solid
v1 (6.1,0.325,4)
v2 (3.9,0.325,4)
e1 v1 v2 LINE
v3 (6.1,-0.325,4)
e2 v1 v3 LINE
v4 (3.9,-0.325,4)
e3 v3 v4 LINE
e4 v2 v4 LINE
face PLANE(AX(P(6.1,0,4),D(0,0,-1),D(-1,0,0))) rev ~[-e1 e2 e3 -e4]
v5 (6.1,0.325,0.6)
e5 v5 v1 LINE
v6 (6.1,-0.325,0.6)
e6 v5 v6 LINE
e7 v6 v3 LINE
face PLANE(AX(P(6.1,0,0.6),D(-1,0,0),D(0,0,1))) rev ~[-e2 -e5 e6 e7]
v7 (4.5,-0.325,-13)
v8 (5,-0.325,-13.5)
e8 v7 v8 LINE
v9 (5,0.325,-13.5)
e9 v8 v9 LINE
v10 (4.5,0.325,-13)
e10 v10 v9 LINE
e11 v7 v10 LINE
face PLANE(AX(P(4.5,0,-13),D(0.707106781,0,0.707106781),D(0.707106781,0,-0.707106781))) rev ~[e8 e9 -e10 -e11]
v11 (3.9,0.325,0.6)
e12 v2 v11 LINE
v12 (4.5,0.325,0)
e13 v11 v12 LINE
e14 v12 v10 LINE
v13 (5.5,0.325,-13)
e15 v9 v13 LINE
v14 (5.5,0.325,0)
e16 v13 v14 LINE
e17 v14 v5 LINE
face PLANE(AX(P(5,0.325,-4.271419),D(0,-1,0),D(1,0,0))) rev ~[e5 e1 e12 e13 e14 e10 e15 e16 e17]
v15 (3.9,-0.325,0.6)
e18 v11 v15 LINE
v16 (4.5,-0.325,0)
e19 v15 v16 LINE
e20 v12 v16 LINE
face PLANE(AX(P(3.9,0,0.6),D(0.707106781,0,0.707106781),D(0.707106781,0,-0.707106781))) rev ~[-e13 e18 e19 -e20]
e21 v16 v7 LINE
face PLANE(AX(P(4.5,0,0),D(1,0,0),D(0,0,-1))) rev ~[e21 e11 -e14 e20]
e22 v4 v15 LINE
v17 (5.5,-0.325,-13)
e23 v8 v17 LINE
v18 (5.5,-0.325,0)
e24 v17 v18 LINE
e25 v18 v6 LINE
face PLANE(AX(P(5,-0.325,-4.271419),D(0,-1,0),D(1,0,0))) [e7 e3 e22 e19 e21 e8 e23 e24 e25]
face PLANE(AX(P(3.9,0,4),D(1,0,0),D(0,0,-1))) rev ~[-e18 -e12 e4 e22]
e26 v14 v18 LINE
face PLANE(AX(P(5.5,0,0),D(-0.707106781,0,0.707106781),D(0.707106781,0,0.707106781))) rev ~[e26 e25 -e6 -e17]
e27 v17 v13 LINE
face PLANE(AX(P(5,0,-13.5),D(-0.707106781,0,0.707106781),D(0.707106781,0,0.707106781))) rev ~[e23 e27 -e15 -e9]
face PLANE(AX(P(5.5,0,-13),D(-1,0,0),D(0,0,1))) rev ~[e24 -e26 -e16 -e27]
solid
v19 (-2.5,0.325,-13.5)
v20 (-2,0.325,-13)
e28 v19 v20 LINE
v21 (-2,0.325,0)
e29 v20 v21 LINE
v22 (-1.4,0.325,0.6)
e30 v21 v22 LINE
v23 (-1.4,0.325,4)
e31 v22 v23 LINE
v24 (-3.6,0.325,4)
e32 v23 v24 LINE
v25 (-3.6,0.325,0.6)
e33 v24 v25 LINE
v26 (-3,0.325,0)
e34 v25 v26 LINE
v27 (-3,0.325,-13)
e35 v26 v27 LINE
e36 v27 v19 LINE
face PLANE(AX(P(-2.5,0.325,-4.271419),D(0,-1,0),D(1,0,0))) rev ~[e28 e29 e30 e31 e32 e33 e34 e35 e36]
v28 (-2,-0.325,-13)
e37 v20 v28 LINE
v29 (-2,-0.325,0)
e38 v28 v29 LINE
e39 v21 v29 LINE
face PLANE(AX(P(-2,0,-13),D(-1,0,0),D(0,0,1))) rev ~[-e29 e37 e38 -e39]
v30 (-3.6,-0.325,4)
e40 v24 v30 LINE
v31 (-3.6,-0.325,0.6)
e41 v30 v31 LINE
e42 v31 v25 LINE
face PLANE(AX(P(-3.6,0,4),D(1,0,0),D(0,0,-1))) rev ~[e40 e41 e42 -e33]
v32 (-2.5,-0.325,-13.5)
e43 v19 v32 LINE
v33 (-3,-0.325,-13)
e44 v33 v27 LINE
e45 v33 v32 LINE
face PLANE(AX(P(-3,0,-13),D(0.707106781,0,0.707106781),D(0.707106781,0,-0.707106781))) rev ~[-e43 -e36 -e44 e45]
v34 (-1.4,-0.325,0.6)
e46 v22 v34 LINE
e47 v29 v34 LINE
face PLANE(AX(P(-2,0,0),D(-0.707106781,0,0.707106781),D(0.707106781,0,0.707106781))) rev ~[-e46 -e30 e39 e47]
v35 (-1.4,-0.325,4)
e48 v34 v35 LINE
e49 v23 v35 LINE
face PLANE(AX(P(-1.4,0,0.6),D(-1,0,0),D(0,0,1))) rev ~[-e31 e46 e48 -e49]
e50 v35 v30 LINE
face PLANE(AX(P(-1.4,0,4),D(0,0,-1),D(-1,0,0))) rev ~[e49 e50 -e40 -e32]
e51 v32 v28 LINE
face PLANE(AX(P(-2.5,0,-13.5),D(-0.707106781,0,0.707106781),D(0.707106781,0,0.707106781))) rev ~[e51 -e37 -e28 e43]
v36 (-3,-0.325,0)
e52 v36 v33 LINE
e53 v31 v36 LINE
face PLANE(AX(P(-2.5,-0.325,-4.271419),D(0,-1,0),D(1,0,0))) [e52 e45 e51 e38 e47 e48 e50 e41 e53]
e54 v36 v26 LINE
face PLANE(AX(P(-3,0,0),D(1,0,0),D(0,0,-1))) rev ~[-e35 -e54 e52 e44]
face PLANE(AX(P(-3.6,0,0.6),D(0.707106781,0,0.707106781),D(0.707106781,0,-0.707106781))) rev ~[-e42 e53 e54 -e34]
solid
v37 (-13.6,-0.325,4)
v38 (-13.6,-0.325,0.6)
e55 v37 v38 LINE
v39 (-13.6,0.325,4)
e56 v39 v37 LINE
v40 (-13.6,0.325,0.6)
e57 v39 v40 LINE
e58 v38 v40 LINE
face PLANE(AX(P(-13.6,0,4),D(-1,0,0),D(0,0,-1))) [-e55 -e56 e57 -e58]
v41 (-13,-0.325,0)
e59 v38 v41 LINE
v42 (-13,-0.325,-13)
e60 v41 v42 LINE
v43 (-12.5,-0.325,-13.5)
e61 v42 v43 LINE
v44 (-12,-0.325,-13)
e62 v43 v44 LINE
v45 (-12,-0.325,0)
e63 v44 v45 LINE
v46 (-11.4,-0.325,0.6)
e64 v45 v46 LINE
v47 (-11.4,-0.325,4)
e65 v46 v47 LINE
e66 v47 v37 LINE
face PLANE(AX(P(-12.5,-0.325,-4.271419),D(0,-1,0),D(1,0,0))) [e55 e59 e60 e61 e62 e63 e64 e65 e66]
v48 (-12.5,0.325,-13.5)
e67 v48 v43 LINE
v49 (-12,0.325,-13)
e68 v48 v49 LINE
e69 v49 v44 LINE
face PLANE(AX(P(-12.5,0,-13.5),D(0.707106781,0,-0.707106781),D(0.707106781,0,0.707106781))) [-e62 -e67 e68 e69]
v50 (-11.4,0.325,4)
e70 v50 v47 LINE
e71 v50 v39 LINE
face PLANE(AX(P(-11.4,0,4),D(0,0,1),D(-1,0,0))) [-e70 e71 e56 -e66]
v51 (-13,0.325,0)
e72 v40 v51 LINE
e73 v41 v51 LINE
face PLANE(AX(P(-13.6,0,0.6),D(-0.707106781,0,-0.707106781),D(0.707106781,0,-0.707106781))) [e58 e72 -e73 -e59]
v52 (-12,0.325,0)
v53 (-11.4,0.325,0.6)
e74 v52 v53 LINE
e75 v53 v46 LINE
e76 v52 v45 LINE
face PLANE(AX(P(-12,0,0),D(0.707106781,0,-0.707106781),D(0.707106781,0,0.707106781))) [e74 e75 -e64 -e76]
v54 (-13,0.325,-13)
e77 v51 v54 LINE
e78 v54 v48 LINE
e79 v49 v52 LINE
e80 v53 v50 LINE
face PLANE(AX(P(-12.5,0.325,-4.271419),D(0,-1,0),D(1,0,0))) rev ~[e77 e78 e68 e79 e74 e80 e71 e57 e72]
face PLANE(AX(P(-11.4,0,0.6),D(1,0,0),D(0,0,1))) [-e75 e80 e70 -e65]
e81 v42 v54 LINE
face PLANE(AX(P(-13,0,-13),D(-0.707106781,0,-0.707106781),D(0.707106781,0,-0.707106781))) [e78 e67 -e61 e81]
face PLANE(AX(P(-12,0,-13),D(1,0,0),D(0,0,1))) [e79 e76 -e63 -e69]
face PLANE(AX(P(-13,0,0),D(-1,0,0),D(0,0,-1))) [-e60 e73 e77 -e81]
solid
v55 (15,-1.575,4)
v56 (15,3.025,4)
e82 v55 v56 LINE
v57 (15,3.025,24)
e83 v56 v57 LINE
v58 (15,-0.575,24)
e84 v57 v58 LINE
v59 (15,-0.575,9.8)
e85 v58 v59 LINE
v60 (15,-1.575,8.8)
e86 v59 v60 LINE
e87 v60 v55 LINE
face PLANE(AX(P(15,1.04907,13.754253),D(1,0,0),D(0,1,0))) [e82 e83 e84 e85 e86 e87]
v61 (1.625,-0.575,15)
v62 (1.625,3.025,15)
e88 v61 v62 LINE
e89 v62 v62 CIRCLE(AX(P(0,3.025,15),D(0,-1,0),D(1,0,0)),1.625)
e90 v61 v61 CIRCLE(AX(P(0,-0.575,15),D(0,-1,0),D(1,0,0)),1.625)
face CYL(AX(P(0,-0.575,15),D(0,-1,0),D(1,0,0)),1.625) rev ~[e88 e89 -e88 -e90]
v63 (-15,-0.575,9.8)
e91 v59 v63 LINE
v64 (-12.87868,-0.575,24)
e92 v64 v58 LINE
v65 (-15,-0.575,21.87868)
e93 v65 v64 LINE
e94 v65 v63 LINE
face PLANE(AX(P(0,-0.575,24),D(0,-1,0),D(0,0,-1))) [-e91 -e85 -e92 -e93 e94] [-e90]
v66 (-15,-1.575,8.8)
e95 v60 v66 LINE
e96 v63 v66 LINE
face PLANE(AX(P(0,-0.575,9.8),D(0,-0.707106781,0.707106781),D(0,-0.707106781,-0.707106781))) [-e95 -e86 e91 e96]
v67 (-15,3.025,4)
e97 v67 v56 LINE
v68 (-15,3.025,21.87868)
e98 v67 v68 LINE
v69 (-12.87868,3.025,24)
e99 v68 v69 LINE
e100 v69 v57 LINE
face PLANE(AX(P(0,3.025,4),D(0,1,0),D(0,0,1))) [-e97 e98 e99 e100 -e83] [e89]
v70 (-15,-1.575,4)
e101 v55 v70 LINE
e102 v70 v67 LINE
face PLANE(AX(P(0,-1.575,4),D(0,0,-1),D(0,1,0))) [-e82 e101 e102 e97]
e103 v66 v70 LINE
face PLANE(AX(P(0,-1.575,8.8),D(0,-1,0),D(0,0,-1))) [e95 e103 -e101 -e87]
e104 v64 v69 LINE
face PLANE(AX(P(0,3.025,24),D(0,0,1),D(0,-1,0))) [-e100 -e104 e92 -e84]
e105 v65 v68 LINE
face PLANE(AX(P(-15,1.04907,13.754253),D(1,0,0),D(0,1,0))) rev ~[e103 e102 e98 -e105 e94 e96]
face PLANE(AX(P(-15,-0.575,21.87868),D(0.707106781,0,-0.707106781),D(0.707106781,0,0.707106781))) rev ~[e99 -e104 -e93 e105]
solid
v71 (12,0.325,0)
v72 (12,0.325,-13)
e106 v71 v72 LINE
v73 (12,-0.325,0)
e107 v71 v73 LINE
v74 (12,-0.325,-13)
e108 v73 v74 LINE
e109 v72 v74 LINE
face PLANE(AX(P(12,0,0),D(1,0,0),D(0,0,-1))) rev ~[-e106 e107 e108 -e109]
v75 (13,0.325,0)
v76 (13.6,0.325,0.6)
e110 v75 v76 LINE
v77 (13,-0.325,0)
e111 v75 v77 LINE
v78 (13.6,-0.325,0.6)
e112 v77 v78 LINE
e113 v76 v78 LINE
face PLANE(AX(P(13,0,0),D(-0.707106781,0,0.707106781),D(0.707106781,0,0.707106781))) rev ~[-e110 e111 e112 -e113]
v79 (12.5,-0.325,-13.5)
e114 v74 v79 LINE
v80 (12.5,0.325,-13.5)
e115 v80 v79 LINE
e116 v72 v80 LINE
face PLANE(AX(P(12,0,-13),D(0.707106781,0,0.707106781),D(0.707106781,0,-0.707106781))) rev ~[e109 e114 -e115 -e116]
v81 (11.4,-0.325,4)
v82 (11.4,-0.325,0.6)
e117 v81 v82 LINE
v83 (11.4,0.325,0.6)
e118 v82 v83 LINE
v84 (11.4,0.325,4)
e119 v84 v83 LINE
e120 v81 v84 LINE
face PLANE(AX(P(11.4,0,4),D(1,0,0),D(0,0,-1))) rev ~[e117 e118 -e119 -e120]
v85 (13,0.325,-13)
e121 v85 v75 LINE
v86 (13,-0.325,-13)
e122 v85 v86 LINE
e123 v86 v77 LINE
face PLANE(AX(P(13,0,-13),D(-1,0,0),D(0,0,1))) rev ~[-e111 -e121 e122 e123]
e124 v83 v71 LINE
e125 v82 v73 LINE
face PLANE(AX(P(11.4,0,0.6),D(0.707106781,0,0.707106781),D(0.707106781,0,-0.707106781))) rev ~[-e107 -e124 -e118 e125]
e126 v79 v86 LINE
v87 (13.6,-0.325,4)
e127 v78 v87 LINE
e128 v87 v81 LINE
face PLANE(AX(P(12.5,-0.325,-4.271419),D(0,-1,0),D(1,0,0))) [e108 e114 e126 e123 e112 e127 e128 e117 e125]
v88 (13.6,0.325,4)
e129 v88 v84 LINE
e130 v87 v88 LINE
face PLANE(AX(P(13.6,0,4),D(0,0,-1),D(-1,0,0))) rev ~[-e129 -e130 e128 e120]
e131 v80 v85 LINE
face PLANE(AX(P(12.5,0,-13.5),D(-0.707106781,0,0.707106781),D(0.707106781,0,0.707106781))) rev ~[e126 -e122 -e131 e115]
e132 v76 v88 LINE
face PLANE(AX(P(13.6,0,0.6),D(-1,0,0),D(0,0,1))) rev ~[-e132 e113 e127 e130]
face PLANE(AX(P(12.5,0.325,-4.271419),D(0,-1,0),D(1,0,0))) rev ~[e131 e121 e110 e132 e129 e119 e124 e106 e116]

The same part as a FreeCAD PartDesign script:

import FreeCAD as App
import Part
import Sketcher

V = App.Vector
Q = App.Units.Quantity

doc = App.newDocument("Part")
body = doc.addObject("PartDesign::Body", "Body")

sketch1 = body.newObject("Sketcher::SketchObject", "Sketch")
sketch1.AttachmentSupport = (doc.getObject("YZ_Plane"), [""])
sketch1.MapMode = "FlatFace"
sketch1.addGeometry([
    Part.LineSegment(V(-1.6, 4, 0), V(3, 4, 0)),
    Part.LineSegment(V(3, 4, 0), V(3, 24, 0)),
    Part.LineSegment(V(3, 24, 0), V(-0.6, 24, 0)),
    Part.LineSegment(V(-0.6, 24, 0), V(-0.6, 9.8, 0)),
    Part.LineSegment(V(-0.6, 9.8, 0), V(-1.6, 8.8, 0)),
    Part.LineSegment(V(-1.6, 8.8, 0), V(-1.6, 4, 0)),
], False)
sketch1.addConstraint([
    Sketcher.Constraint("Coincident", 0, 2, 1, 1),
    Sketcher.Constraint("Coincident", 1, 2, 2, 1),
    Sketcher.Constraint("Coincident", 2, 2, 3, 1),
    Sketcher.Constraint("Coincident", 3, 2, 4, 1),
    Sketcher.Constraint("Coincident", 4, 2, 5, 1),
    Sketcher.Constraint("Coincident", 5, 2, 0, 1),
    Sketcher.Constraint("Horizontal", 0),
    Sketcher.Constraint("Vertical", 1),
    Sketcher.Constraint("Horizontal", 2),
    Sketcher.Constraint("Vertical", 3),
    Sketcher.Constraint("Vertical", 5),
    Sketcher.Constraint("DistanceY", 1, 1, 1, 2, 20.0),
    Sketcher.Constraint("Angle", 4, Q("-135 deg")),
    Sketcher.Constraint("DistanceX", 0, 1, 0, 2, 4.6),
    Sketcher.Constraint("DistanceX", 2, 2, 2, 1, 3.6),
    Sketcher.Constraint("DistanceY", 3, 2, 3, 1, 14.2),
    Sketcher.Constraint("DistanceY", -1, 1, 0, 2, 4.0),
    Sketcher.Constraint("DistanceX", -1, 1, 0, 2, 3.025),
])
pad1 = body.newObject("PartDesign::Pad", "Pad")
pad1.Profile = sketch1
pad1.Length = 30
pad1.Midplane = True

sketch2 = body.newObject("Sketcher::SketchObject", "Sketch001")
sketch2.AttachmentSupport = (doc.getObject("XZ_Plane"), [""])
sketch2.MapMode = "FlatFace"
sketch2.AttachmentOffset = App.Placement(V(0, 0, 0.575), App.Rotation())
sketch2.addGeometry([
    Part.LineSegment(V(-15, 24, 0), V(-15, 21.9, 0)),
    Part.LineSegment(V(-15, 21.9, 0), V(-12.9, 24, 0)),
    Part.LineSegment(V(-12.9, 24, 0), V(-15, 24, 0)),
    Part.Circle(V(0, 15, 0), V(0, 0, 1), 1.6),
], False)
sketch2.addConstraint([
    Sketcher.Constraint("Coincident", 0, 2, 1, 1),
    Sketcher.Constraint("Coincident", 1, 2, 2, 1),
    Sketcher.Constraint("Coincident", 2, 2, 0, 1),
    Sketcher.Constraint("Vertical", 0),
    Sketcher.Constraint("Horizontal", 2),
    Sketcher.Constraint("PointOnObject", 3, 3, -2),
    Sketcher.Constraint("Equal", 2, 0),
    Sketcher.Constraint("Diameter", 3, 3.25),
    Sketcher.Constraint("Distance", 1, 3.0),
    Sketcher.Constraint("DistanceY", -1, 1, 3, 3, 15.0),
    Sketcher.Constraint("DistanceX", 0, 2, -1, 1, 15.0),
    Sketcher.Constraint("DistanceY", -1, 1, 1, 2, 24.0),
])
pocket1 = body.newObject("PartDesign::Pocket", "Pocket")
pocket1.Profile = sketch2
pocket1.Type = "ThroughAll"
body2 = doc.addObject("PartDesign::Body", "Body001")
body2.AllowCompound = True

sketch3 = body2.newObject("Sketcher::SketchObject", "Sketch002")
sketch3.AttachmentSupport = (doc.getObject("XZ_Plane001"), [""])
sketch3.MapMode = "FlatFace"
sketch3.addGeometry([
    Part.LineSegment(V(11.4, 0.6, 0), V(12, 0, 0)),
    Part.LineSegment(V(12, 0, 0), V(12, -13, 0)),
    Part.LineSegment(V(12, -13, 0), V(12.5, -13.5, 0)),
    Part.LineSegment(V(12.5, -13.5, 0), V(13, -13, 0)),
    Part.LineSegment(V(13, -13, 0), V(13, 0, 0)),
    Part.LineSegment(V(13, 0, 0), V(13.6, 0.6, 0)),
    Part.LineSegment(V(13.6, 0.6, 0), V(13.6, 4, 0)),
    Part.LineSegment(V(13.6, 4, 0), V(11.4, 4, 0)),
    Part.LineSegment(V(11.4, 4, 0), V(11.4, 0.6, 0)),
    Part.LineSegment(V(5.5, -13, 0), V(5.5, 0, 0)),
    Part.LineSegment(V(5.5, 0, 0), V(6.1, 0.6, 0)),
    Part.LineSegment(V(6.1, 0.6, 0), V(6.1, 4, 0)),
    Part.LineSegment(V(6.1, 4, 0), V(3.9, 4, 0)),
    Part.LineSegment(V(3.9, 4, 0), V(3.9, 0.6, 0)),
    Part.LineSegment(V(3.9, 0.6, 0), V(4.5, 0, 0)),
    Part.LineSegment(V(4.5, 0, 0), V(4.5, -13, 0)),
    Part.LineSegment(V(4.5, -13, 0), V(5, -13.5, 0)),
    Part.LineSegment(V(5, -13.5, 0), V(5.5, -13, 0)),
    Part.LineSegment(V(-3, -13, 0), V(-2.5, -13.5, 0)),
    Part.LineSegment(V(-2.5, -13.5, 0), V(-2, -13, 0)),
    Part.LineSegment(V(-2, -13, 0), V(-2, 0, 0)),
    Part.LineSegment(V(-2, 0, 0), V(-1.4, 0.6, 0)),
    Part.LineSegment(V(-1.4, 0.6, 0), V(-1.4, 4, 0)),
    Part.LineSegment(V(-1.4, 4, 0), V(-3.6, 4, 0)),
    Part.LineSegment(V(-3.6, 4, 0), V(-3.6, 0.6, 0)),
    Part.LineSegment(V(-3.6, 0.6, 0), V(-3, 0, 0)),
    Part.LineSegment(V(-3, 0, 0), V(-3, -13, 0)),
    Part.LineSegment(V(-13, -13, 0), V(-12.5, -13.5, 0)),
    Part.LineSegment(V(-12.5, -13.5, 0), V(-12, -13, 0)),
    Part.LineSegment(V(-12, -13, 0), V(-12, 0, 0)),
    Part.LineSegment(V(-12, 0, 0), V(-11.4, 0.6, 0)),
    Part.LineSegment(V(-11.4, 0.6, 0), V(-11.4, 4, 0)),
    Part.LineSegment(V(-11.4, 4, 0), V(-13.6, 4, 0)),
    Part.LineSegment(V(-13.6, 4, 0), V(-13.6, 0.6, 0)),
    Part.LineSegment(V(-13.6, 0.6, 0), V(-13, 0, 0)),
    Part.LineSegment(V(-13, 0, 0), V(-13, -13, 0)),
], False)
sketch3.addConstraint([
    Sketcher.Constraint("Coincident", 0, 2, 1, 1),
    Sketcher.Constraint("Coincident", 1, 2, 2, 1),
    Sketcher.Constraint("Coincident", 2, 2, 3, 1),
    Sketcher.Constraint("Coincident", 3, 2, 4, 1),
    Sketcher.Constraint("Coincident", 4, 2, 5, 1),
    Sketcher.Constraint("Coincident", 5, 2, 6, 1),
    Sketcher.Constraint("Coincident", 6, 2, 7, 1),
    Sketcher.Constraint("Coincident", 7, 2, 8, 1),
    Sketcher.Constraint("Coincident", 8, 2, 0, 1),
    Sketcher.Constraint("Coincident", 9, 2, 10, 1),
    Sketcher.Constraint("Coincident", 10, 2, 11, 1),
    Sketcher.Constraint("Coincident", 11, 2, 12, 1),
    Sketcher.Constraint("Coincident", 12, 2, 13, 1),
    Sketcher.Constraint("Coincident", 13, 2, 14, 1),
    Sketcher.Constraint("Coincident", 14, 2, 15, 1),
    Sketcher.Constraint("Coincident", 15, 2, 16, 1),
    Sketcher.Constraint("Coincident", 16, 2, 17, 1),
    Sketcher.Constraint("Coincident", 17, 2, 9, 1),
    Sketcher.Constraint("Coincident", 18, 2, 19, 1),
    Sketcher.Constraint("Coincident", 19, 2, 20, 1),
    Sketcher.Constraint("Coincident", 20, 2, 21, 1),
    Sketcher.Constraint("Coincident", 21, 2, 22, 1),
    Sketcher.Constraint("Coincident", 22, 2, 23, 1),
    Sketcher.Constraint("Coincident", 23, 2, 24, 1),
    Sketcher.Constraint("Coincident", 24, 2, 25, 1),
    Sketcher.Constraint("Coincident", 25, 2, 26, 1),
    Sketcher.Constraint("Coincident", 26, 2, 18, 1),
    Sketcher.Constraint("Coincident", 27, 2, 28, 1),
    Sketcher.Constraint("Coincident", 28, 2, 29, 1),
    Sketcher.Constraint("Coincident", 29, 2, 30, 1),
    Sketcher.Constraint("Coincident", 30, 2, 31, 1),
    Sketcher.Constraint("Coincident", 31, 2, 32, 1),
    Sketcher.Constraint("Coincident", 32, 2, 33, 1),
    Sketcher.Constraint("Coincident", 33, 2, 34, 1),
    Sketcher.Constraint("Coincident", 34, 2, 35, 1),
    Sketcher.Constraint("Coincident", 35, 2, 27, 1),
    Sketcher.Constraint("Vertical", 1),
    Sketcher.Constraint("Vertical", 4),
    Sketcher.Constraint("Vertical", 6),
    Sketcher.Constraint("Horizontal", 7),
    Sketcher.Constraint("Vertical", 8),
    Sketcher.Constraint("Vertical", 9),
    Sketcher.Constraint("Vertical", 11),
    Sketcher.Constraint("Horizontal", 12),
    Sketcher.Constraint("Vertical", 13),
    Sketcher.Constraint("Vertical", 15),
    Sketcher.Constraint("Vertical", 20),
    Sketcher.Constraint("Vertical", 22),
    Sketcher.Constraint("Horizontal", 23),
    Sketcher.Constraint("Vertical", 24),
    Sketcher.Constraint("Vertical", 26),
    Sketcher.Constraint("Vertical", 29),
    Sketcher.Constraint("Vertical", 31),
    Sketcher.Constraint("Horizontal", 32),
    Sketcher.Constraint("Vertical", 33),
    Sketcher.Constraint("Vertical", 35),
    Sketcher.Constraint("Symmetric", 0, 2, 29, 2, -1, 1),
    Sketcher.Constraint("Symmetric", 4, 2, 34, 2, -1, 1),
    Sketcher.Constraint("Symmetric", 2, 2, 27, 2, -2),
    Sketcher.Constraint("Symmetric", 8, 2, 30, 2, -2),
    Sketcher.Constraint("Symmetric", 6, 2, 32, 2, -2),
    Sketcher.Constraint("PointOnObject", 0, 2, -1),
    Sketcher.Constraint("PointOnObject", 4, 2, -1),
    Sketcher.Constraint("PointOnObject", 9, 2, -1),
    Sketcher.Constraint("PointOnObject", 14, 2, -1),
    Sketcher.Constraint("PointOnObject", 20, 2, -1),
    Sketcher.Constraint("PointOnObject", 25, 2, -1),
    Sketcher.Constraint("Parallel", 0, 2),
    Sketcher.Constraint("Perpendicular", 2, 3),
    Sketcher.Constraint("Parallel", 3, 5),
    Sketcher.Constraint("Parallel", 5, 10),
    Sketcher.Constraint("Perpendicular", 10, 14),
    Sketcher.Constraint("Parallel", 14, 16),
    Sketcher.Constraint("Perpendicular", 16, 17),
    Sketcher.Constraint("Perpendicular", 17, 18),
    Sketcher.Constraint("Perpendicular", 18, 19),
    Sketcher.Constraint("Parallel", 19, 21),
    Sketcher.Constraint("Perpendicular", 21, 25),
    Sketcher.Constraint("Parallel", 25, 27),
    Sketcher.Constraint("Perpendicular", 27, 28),
    Sketcher.Constraint("Parallel", 28, 30),
    Sketcher.Constraint("Perpendicular", 30, 34),
    Sketcher.Constraint("Horizontal", 1, 2, 3, 2),
    Sketcher.Constraint("Horizontal", 5, 2, 8, 2),
    Sketcher.Constraint("Horizontal", 8, 2, 10, 2),
    Sketcher.Constraint("Horizontal", 7, 2, 11, 2),
    Sketcher.Constraint("Horizontal", 10, 2, 13, 2),
    Sketcher.Constraint("Horizontal", 3, 2, 15, 2),
    Sketcher.Constraint("Horizontal", 2, 2, 16, 2),
    Sketcher.Constraint("Horizontal", 15, 2, 17, 2),
    Sketcher.Constraint("Horizontal", 16, 2, 18, 2),
    Sketcher.Constraint("Horizontal", 17, 2, 19, 2),
    Sketcher.Constraint("Horizontal", 13, 2, 21, 2),
    Sketcher.Constraint("Horizontal", 12, 2, 22, 2),
    Sketcher.Constraint("Horizontal", 21, 2, 24, 2),
    Sketcher.Constraint("Horizontal", 19, 2, 26, 2),
    Sketcher.Constraint("DistanceY", 1, 2, 1, 1, 13.0),
    Sketcher.Constraint("DistanceX", 7, 2, 7, 1, 2.2),
    Sketcher.Constraint("DistanceY", 6, 1, 6, 2, 3.4),
    Sketcher.Constraint("DistanceX", -1, 1, 0, 2, 12.0),
    Sketcher.Constraint("DistanceX", -1, 1, 3, 2, 13.0),
    Sketcher.Constraint("DistanceX", -1, 1, 16, 2, 5.0),
    Sketcher.Constraint("DistanceX", 19, 2, -1, 1, 2.0),
])
pad2 = body2.newObject("PartDesign::Pad", "Pad001")
pad2.Profile = sketch3
pad2.Length = 0.65
pad2.Midplane = True

doc.recompute()
